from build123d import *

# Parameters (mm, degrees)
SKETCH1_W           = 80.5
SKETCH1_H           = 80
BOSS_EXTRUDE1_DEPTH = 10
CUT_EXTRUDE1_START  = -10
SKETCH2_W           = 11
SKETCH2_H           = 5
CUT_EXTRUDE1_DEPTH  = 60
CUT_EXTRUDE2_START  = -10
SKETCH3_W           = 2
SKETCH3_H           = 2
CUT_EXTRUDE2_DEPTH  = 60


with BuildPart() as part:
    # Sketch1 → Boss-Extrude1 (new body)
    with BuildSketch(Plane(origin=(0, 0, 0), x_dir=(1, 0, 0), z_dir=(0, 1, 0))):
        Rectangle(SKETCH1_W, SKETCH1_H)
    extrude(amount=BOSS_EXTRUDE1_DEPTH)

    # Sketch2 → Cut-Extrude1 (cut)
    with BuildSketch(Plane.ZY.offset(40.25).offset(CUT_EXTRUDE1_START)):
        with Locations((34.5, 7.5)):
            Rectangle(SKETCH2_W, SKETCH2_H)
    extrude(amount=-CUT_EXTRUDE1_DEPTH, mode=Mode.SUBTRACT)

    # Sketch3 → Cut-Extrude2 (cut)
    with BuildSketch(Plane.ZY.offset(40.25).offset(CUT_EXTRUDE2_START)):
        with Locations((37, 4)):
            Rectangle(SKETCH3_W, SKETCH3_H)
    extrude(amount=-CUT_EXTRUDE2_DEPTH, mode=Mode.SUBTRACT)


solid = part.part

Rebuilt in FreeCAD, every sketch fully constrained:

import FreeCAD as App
import Part
import Sketcher
Q = App.Units.Quantity

doc = App.newDocument("Part")
body = doc.addObject("PartDesign::Body", "Body")

# Sketch on XZ plane
sketch1 = body.newObject("Sketcher::SketchObject", "Sketch")
sketch1.AttachmentSupport = (doc.getObject("XZ_Plane"), [""])
sketch1.MapMode = "FlatFace"
sketch1.addGeometry([
    Part.LineSegment(App.Vector(-40, -40, 0), App.Vector(-40, 40, 0)),
    Part.LineSegment(App.Vector(-40, 40, 0), App.Vector(40, 40, 0)),
    Part.LineSegment(App.Vector(40, 40, 0), App.Vector(40, -40, 0)),
    Part.LineSegment(App.Vector(40, -40, 0), App.Vector(-40, -40, 0)),
], False)
sketch1.addConstraint([
    Sketcher.Constraint("Coincident", 0, 2, 1, 1),
    Sketcher.Constraint("Coincident", 1, 2, 2, 1),
    Sketcher.Constraint("Coincident", 2, 2, 3, 1),
    Sketcher.Constraint("Coincident", 3, 2, 0, 1),
    Sketcher.Constraint("Vertical", 0),
    Sketcher.Constraint("Horizontal", 1),
    Sketcher.Constraint("Vertical", 2),
    Sketcher.Constraint("Horizontal", 3),
    Sketcher.Constraint("Symmetric", 0, 2, 2, 2, -1, 1),
    Sketcher.Constraint("DistanceY", 0, 1, 0, 2, Q("80 mm")),
    Sketcher.Constraint("DistanceX", 1, 1, 1, 2, Q("80.5 mm")),
])
pad1 = body.newObject("PartDesign::Pad", "Pad")
pad1.Profile = sketch1
pad1.Length = 10
pad1.Reversed = True

# Sketch on YZ plane
sketch2 = body.newObject("Sketcher::SketchObject", "Sketch001")
sketch2.AttachmentSupport = (doc.getObject("YZ_Plane"), [""])
sketch2.MapMode = "FlatFace"
sketch2.AttachmentOffset = App.Placement(App.Vector(0, 0, -30.25), App.Rotation())
sketch2.addGeometry([
    Part.LineSegment(App.Vector(10, 29, 0), App.Vector(5, 29, 0)),
    Part.LineSegment(App.Vector(5, 29, 0), App.Vector(5, 40, 0)),
    Part.LineSegment(App.Vector(5, 40, 0), App.Vector(10, 40, 0)),
    Part.LineSegment(App.Vector(10, 40, 0), App.Vector(10, 29, 0)),
], False)
sketch2.addConstraint([
    Sketcher.Constraint("Coincident", 0, 2, 1, 1),
    Sketcher.Constraint("Coincident", 1, 2, 2, 1),
    Sketcher.Constraint("Coincident", 2, 2, 3, 1),
    Sketcher.Constraint("Coincident", 3, 2, 0, 1),
    Sketcher.Constraint("Horizontal", 0),
    Sketcher.Constraint("Vertical", 1),
    Sketcher.Constraint("Horizontal", 2),
    Sketcher.Constraint("Vertical", 3),
    Sketcher.Constraint("DistanceX", 0, 2, 0, 1, Q("5 mm")),
    Sketcher.Constraint("DistanceY", 1, 1, 1, 2, Q("11 mm")),
    Sketcher.Constraint("DistanceX", -1, 1, 0, 2, Q("5 mm")),
    Sketcher.Constraint("DistanceY", -1, 1, 0, 2, Q("29 mm")),
])
pocket1 = body.newObject("PartDesign::Pocket", "Pocket")
pocket1.Profile = sketch2
pocket1.Length = 60
pocket1.Reversed = True

# Sketch on YZ plane
sketch3 = body.newObject("Sketcher::SketchObject", "Sketch002")
sketch3.AttachmentSupport = (doc.getObject("YZ_Plane"), [""])
sketch3.MapMode = "FlatFace"
sketch3.AttachmentOffset = App.Placement(App.Vector(0, 0, -30.25), App.Rotation())
sketch3.addGeometry([
    Part.LineSegment(App.Vector(5, 36, 0), App.Vector(3, 36, 0)),
    Part.LineSegment(App.Vector(3, 36, 0), App.Vector(3, 38, 0)),
    Part.LineSegment(App.Vector(3, 38, 0), App.Vector(5, 38, 0)),
    Part.LineSegment(App.Vector(5, 38, 0), App.Vector(5, 36, 0)),
], False)
sketch3.addConstraint([
    Sketcher.Constraint("Coincident", 0, 2, 1, 1),
    Sketcher.Constraint("Coincident", 1, 2, 2, 1),
    Sketcher.Constraint("Coincident", 2, 2, 3, 1),
    Sketcher.Constraint("Coincident", 3, 2, 0, 1),
    Sketcher.Constraint("Horizontal", 0),
    Sketcher.Constraint("Vertical", 1),
    Sketcher.Constraint("Horizontal", 2),
    Sketcher.Constraint("Vertical", 3),
    Sketcher.Constraint("Equal", 2, 1),
    Sketcher.Constraint("DistanceX", 0, 2, 0, 1, Q("2 mm")),
    Sketcher.Constraint("DistanceX", -1, 1, 0, 2, Q("3 mm")),
    Sketcher.Constraint("DistanceY", -1, 1, 0, 2, Q("36 mm")),
])
pocket2 = body.newObject("PartDesign::Pocket", "Pocket001")
pocket2.Profile = sketch3
pocket2.Length = 60
pocket2.Reversed = True

doc.recompute()
